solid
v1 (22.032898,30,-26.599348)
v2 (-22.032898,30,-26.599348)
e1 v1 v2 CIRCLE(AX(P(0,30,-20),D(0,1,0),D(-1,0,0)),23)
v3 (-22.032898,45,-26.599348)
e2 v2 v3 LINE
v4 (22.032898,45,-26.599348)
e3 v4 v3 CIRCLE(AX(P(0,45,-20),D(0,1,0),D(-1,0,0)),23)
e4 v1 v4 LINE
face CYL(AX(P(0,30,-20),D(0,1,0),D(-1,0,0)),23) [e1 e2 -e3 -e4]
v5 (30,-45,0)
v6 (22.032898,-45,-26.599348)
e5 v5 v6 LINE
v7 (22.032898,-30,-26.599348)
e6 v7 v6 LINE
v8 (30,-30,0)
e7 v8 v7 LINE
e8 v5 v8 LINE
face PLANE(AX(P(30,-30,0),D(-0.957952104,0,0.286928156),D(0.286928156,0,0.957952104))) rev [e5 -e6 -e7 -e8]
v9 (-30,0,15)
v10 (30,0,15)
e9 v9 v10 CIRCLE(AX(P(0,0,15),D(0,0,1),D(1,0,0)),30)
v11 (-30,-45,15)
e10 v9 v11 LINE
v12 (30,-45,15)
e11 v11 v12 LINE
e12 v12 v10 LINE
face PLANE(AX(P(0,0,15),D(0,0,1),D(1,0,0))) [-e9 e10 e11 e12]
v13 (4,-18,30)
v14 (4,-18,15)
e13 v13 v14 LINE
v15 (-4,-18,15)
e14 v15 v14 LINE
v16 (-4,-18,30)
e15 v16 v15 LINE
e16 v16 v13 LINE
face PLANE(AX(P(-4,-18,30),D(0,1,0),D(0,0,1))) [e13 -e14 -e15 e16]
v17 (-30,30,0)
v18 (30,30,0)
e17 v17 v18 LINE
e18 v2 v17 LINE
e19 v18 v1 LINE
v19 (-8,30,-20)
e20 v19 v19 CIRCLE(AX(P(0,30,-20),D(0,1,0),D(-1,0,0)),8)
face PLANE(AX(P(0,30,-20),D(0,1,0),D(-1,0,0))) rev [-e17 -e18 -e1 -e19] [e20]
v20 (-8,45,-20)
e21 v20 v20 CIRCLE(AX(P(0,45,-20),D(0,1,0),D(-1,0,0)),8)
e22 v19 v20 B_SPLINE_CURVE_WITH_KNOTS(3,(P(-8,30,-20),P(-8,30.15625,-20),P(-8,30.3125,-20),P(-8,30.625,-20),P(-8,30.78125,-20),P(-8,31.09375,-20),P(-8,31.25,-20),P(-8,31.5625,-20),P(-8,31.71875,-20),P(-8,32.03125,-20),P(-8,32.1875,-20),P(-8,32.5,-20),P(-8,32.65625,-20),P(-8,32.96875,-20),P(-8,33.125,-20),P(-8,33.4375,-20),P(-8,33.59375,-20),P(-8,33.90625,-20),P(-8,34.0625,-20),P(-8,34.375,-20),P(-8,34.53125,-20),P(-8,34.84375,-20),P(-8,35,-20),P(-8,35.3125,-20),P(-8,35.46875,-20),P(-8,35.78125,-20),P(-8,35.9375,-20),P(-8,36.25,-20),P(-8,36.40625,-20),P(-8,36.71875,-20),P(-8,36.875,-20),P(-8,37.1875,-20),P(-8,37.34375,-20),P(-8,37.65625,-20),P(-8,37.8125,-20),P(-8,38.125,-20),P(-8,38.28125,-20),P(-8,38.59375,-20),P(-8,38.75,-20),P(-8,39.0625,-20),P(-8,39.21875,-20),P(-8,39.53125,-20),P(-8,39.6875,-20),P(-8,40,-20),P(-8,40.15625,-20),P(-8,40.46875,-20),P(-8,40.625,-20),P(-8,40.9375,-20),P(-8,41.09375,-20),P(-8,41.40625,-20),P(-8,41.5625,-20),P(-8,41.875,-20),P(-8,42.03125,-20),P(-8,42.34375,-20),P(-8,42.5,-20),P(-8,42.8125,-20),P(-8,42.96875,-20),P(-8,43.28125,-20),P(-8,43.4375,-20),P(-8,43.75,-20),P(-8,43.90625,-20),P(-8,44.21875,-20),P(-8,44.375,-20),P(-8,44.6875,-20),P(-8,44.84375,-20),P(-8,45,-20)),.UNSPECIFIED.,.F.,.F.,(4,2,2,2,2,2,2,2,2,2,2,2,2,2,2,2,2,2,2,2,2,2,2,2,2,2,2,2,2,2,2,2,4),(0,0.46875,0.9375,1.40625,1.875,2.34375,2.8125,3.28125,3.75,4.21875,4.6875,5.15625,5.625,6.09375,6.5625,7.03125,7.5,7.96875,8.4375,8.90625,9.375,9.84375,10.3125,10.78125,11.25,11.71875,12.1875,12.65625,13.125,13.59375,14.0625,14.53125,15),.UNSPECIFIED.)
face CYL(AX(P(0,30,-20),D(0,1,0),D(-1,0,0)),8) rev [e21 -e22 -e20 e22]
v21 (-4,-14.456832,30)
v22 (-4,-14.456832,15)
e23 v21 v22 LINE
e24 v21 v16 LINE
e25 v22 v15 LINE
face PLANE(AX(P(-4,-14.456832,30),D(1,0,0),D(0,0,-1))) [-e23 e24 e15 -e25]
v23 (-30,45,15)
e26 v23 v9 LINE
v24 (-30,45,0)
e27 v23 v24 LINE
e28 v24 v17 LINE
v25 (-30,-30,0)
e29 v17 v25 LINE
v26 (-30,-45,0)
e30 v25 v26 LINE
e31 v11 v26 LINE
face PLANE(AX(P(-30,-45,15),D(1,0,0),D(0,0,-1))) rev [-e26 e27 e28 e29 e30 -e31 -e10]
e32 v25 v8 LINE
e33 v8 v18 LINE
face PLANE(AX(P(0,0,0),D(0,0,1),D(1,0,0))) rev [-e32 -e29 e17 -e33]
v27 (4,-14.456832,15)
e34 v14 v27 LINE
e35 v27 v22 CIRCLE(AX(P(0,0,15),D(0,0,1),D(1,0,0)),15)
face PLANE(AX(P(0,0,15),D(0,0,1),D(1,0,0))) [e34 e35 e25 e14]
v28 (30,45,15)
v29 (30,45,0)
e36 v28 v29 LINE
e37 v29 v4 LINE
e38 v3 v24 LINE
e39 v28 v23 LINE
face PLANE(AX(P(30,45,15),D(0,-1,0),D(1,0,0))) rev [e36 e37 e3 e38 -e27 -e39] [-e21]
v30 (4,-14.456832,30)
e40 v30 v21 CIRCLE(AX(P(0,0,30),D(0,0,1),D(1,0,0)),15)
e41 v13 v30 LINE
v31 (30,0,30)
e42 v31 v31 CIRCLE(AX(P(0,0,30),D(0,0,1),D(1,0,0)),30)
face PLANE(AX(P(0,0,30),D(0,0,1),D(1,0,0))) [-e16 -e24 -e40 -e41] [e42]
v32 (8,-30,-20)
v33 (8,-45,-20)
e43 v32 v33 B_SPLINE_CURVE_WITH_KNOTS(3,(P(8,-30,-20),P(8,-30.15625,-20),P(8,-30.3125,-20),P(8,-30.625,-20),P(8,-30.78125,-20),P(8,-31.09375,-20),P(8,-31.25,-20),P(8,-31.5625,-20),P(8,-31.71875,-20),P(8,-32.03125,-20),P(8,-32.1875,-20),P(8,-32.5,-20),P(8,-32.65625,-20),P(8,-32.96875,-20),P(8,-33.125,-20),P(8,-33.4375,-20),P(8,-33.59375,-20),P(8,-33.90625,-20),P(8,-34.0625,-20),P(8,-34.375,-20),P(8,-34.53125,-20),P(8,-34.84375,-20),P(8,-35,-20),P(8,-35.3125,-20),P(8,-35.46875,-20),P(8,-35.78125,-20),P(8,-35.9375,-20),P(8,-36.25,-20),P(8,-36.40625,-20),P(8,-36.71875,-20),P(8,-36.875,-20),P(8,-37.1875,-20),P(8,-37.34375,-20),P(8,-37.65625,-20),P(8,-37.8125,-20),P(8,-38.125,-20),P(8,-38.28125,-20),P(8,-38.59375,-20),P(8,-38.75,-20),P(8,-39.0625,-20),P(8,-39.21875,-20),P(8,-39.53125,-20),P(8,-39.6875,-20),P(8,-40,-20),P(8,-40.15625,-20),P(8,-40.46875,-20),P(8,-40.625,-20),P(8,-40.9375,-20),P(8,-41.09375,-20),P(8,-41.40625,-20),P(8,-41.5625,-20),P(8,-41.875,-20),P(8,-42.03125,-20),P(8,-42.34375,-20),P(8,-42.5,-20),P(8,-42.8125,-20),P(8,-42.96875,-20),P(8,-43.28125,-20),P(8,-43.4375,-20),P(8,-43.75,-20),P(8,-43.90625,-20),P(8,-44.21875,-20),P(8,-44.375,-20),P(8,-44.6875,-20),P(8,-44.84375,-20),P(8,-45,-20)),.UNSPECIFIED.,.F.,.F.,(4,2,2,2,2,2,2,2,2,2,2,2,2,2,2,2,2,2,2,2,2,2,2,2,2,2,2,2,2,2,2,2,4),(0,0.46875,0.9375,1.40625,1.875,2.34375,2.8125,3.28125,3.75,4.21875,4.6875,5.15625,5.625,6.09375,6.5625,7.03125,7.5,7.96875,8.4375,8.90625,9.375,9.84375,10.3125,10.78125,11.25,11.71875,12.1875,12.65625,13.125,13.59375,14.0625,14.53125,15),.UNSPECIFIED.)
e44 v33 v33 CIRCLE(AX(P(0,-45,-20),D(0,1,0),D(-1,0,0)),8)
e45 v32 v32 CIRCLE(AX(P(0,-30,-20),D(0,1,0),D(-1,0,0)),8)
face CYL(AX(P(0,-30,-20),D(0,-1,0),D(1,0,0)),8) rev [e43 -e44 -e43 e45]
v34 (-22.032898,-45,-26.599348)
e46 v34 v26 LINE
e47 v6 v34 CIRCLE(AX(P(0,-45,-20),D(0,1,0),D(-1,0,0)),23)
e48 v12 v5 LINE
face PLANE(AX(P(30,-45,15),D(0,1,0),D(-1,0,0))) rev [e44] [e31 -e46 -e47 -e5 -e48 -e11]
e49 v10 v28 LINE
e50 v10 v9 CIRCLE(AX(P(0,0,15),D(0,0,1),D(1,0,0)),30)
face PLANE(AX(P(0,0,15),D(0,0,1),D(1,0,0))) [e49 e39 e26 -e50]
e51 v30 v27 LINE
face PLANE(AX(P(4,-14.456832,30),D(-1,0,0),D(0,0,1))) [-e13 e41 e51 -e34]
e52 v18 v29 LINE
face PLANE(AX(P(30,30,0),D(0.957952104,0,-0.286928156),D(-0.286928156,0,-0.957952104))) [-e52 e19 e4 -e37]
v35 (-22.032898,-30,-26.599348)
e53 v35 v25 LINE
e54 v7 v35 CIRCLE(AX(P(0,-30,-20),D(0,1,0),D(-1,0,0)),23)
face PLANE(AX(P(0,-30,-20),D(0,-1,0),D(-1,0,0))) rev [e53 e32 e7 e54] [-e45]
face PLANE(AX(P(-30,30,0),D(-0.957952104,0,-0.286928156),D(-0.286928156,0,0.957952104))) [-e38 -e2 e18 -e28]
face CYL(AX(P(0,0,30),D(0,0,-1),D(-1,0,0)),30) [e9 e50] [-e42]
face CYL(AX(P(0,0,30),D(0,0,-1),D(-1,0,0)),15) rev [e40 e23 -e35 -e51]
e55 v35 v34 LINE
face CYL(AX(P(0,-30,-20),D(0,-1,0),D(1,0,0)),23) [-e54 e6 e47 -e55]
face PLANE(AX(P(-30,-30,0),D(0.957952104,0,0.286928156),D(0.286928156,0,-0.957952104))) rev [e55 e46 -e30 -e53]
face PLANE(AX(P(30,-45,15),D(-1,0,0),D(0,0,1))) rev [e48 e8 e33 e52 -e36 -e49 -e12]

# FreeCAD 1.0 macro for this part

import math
import FreeCAD as App
import Part
import Sketcher


def add_polygon(sketch, points):
    """Adds a closed chain of lines whose ends are joined by coincident constraints."""
    first, n = sketch.GeometryCount, len(points)
    for a, b in zip(points, points[1:] + points[:1]):
        sketch.addGeometry(Part.LineSegment(App.Vector(*a, 0), App.Vector(*b, 0)), False)
    for i in range(n):
        sketch.addConstraint(Sketcher.Constraint("Coincident", first + i, 2, first + (i + 1) % n, 1))

doc = App.newDocument("Part")
params = doc.addObject("Spreadsheet::Sheet", "Params")
for row, (alias, value) in enumerate([
    ("sketch1_width", "60 mm"),
    ("sketch1_height", "90 mm"),
    ("pad1_length", "15 mm"),
    ("sketch2_diameter", "60 mm"),
    ("sketch2_radius", "15 mm"),
    ("sketch2_width", "8 mm"),
    ("pad2_length", "15 mm"),
    ("sketch3_diameter", "16 mm"),
    ("sketch3_radius", "23 mm"),
    ("sketch3_width", "60 mm"),
    ("pad3_length", "15 mm"),
], start=1):
    params.set(f"A{row}", alias)
    params.set(f"B{row}", "=" + value)
    params.setAlias(f"B{row}", alias)

body = doc.addObject("PartDesign::Body", "Body")

sketch1 = body.newObject("Sketcher::SketchObject", "Sketch")
sketch1.AttachmentSupport = (doc.getObject("XY_Plane"), [""])
sketch1.MapMode = "FlatFace"
add_polygon(sketch1, [(-30, 45), (-30, -45), (30, -45), (30, 45)])
sketch1.addConstraint([
    Sketcher.Constraint("Vertical", 0),
    Sketcher.Constraint("Horizontal", 1),
    Sketcher.Constraint("Vertical", 2),
    Sketcher.Constraint("Horizontal", 3),
    Sketcher.Constraint("Symmetric", 0, 2, 2, 2, -1, 1),
    Sketcher.Constraint("DistanceX", 1, 1, 1, 2, 60.0),
    Sketcher.Constraint("DistanceY", 0, 2, 0, 1, 90.0),
])
sketch1.setExpression("Constraints[9]", "Params.sketch1_width")
sketch1.setExpression("Constraints[10]", "Params.sketch1_height")
pad1 = body.newObject("PartDesign::Pad", "Pad")
pad1.Profile = sketch1
pad1.setExpression("Length", "Params.pad1_length")

sketch2 = body.newObject("Sketcher::SketchObject", "Sketch001")
sketch2.AttachmentSupport = (doc.getObject("XY_Plane"), [""])
sketch2.MapMode = "FlatFace"
sketch2.AttachmentOffset = App.Placement(App.Vector(0, 0, 15), App.Rotation())
sketch2.addGeometry([
    Part.Circle(App.Vector(0, 0, 0), App.Vector(0, 0, 1), 30),
    Part.LineSegment(App.Vector(-4, -18, 0), App.Vector(-4, -14.456832, 0)),
    Part.ArcOfCircle(Part.Circle(App.Vector(0, 0, 0), App.Vector(0, 0, 1), 15), math.radians(-74.53399), math.radians(254.53399)),
    Part.LineSegment(App.Vector(4, -14.456832, 0), App.Vector(4, -18, 0)),
    Part.LineSegment(App.Vector(4, -18, 0), App.Vector(-4, -18, 0)),
], False)
sketch2.addConstraint([
    Sketcher.Constraint("Coincident", 1, 2, 2, 2),
    Sketcher.Constraint("Coincident", 2, 1, 3, 1),
    Sketcher.Constraint("Coincident", 3, 2, 4, 1),
    Sketcher.Constraint("Coincident", 4, 2, 1, 1),
    Sketcher.Constraint("Vertical", 1),
    Sketcher.Constraint("Vertical", 3),
    Sketcher.Constraint("Horizontal", 4),
    Sketcher.Constraint("Coincident", 0, 3, -1, 1),
    Sketcher.Constraint("Coincident", 2, 3, -1, 1),
    Sketcher.Constraint("Horizontal", 1, 2, 2, 1),
    Sketcher.Constraint("Diameter", 0, 60.0),
    Sketcher.Constraint("Radius", 2, 15.0),
    Sketcher.Constraint("DistanceX", 4, 2, 4, 1, 8.0),
    Sketcher.Constraint("DistanceY", 3, 2, -1, 1, 18.0),
])
sketch2.setExpression("Constraints[10]", "Params.sketch2_diameter")
sketch2.setExpression("Constraints[11]", "Params.sketch2_radius")
sketch2.setExpression("Constraints[12]", "Params.sketch2_width")
pad2 = body.newObject("PartDesign::Pad", "Pad001")
pad2.Profile = sketch2
pad2.setExpression("Length", "Params.pad2_length")

sketch3 = body.newObject("Sketcher::SketchObject", "Sketch002")
sketch3.AttachmentSupport = (doc.getObject("XZ_Plane"), [""])
sketch3.MapMode = "FlatFace"
sketch3.AttachmentOffset = App.Placement(App.Vector(0, 0, -45), App.Rotation())
sketch3.addGeometry([
    Part.LineSegment(App.Vector(30, 0, 0), App.Vector(22.032898, -26.599348, 0)),
    Part.ArcOfCircle(Part.Circle(App.Vector(0, -20, 0), App.Vector(0, 0, 1), 23), math.radians(-163.325862), math.radians(-16.674138)),
    Part.LineSegment(App.Vector(-22.032898, -26.599348, 0), App.Vector(-30, 0, 0)),
    Part.LineSegment(App.Vector(-30, 0, 0), App.Vector(30, 0, 0)),
    Part.Circle(App.Vector(0, -20, 0), App.Vector(0, 0, 1), 8),
], False)
sketch3.addConstraint([
    Sketcher.Constraint("Tangent", 0, 2, 1, 2),
    Sketcher.Constraint("Tangent", 1, 1, 2, 1),
    Sketcher.Constraint("Coincident", 2, 2, 3, 1),
    Sketcher.Constraint("Coincident", 3, 2, 0, 1),
    Sketcher.Constraint("Horizontal", 3),
    Sketcher.Constraint("Coincident", 4, 3, 1, 3),
    Sketcher.Constraint("Symmetric", 2, 2, 3, 2, -1, 1),
    Sketcher.Constraint("PointOnObject", 1, 3, -2),
    Sketcher.Constraint("Diameter", 4, 16.0),
    Sketcher.Constraint("Radius", 1, 23.0),
    Sketcher.Constraint("DistanceX", 3, 1, 3, 2, 60.0),
    Sketcher.Constraint("DistanceY", 1, 3, -1, 1, 20.0),
])
sketch3.setExpression("Constraints[8]", "Params.sketch3_diameter")
sketch3.setExpression("Constraints[9]", "Params.sketch3_radius")
sketch3.setExpression("Constraints[10]", "Params.sketch3_width")
pad3 = body.newObject("PartDesign::Pad", "Pad002")
pad3.Profile = sketch3
pad3.setExpression("Length", "Params.pad3_length")
doc.recompute()

mirrored = body.newObject("PartDesign::Mirrored", "Mirrored")
mirrored.Originals = [pad3]
mirrored.MirrorPlane = (doc.getObject("XZ_Plane"), [""])
body.Tip = mirrored

doc.recompute()
